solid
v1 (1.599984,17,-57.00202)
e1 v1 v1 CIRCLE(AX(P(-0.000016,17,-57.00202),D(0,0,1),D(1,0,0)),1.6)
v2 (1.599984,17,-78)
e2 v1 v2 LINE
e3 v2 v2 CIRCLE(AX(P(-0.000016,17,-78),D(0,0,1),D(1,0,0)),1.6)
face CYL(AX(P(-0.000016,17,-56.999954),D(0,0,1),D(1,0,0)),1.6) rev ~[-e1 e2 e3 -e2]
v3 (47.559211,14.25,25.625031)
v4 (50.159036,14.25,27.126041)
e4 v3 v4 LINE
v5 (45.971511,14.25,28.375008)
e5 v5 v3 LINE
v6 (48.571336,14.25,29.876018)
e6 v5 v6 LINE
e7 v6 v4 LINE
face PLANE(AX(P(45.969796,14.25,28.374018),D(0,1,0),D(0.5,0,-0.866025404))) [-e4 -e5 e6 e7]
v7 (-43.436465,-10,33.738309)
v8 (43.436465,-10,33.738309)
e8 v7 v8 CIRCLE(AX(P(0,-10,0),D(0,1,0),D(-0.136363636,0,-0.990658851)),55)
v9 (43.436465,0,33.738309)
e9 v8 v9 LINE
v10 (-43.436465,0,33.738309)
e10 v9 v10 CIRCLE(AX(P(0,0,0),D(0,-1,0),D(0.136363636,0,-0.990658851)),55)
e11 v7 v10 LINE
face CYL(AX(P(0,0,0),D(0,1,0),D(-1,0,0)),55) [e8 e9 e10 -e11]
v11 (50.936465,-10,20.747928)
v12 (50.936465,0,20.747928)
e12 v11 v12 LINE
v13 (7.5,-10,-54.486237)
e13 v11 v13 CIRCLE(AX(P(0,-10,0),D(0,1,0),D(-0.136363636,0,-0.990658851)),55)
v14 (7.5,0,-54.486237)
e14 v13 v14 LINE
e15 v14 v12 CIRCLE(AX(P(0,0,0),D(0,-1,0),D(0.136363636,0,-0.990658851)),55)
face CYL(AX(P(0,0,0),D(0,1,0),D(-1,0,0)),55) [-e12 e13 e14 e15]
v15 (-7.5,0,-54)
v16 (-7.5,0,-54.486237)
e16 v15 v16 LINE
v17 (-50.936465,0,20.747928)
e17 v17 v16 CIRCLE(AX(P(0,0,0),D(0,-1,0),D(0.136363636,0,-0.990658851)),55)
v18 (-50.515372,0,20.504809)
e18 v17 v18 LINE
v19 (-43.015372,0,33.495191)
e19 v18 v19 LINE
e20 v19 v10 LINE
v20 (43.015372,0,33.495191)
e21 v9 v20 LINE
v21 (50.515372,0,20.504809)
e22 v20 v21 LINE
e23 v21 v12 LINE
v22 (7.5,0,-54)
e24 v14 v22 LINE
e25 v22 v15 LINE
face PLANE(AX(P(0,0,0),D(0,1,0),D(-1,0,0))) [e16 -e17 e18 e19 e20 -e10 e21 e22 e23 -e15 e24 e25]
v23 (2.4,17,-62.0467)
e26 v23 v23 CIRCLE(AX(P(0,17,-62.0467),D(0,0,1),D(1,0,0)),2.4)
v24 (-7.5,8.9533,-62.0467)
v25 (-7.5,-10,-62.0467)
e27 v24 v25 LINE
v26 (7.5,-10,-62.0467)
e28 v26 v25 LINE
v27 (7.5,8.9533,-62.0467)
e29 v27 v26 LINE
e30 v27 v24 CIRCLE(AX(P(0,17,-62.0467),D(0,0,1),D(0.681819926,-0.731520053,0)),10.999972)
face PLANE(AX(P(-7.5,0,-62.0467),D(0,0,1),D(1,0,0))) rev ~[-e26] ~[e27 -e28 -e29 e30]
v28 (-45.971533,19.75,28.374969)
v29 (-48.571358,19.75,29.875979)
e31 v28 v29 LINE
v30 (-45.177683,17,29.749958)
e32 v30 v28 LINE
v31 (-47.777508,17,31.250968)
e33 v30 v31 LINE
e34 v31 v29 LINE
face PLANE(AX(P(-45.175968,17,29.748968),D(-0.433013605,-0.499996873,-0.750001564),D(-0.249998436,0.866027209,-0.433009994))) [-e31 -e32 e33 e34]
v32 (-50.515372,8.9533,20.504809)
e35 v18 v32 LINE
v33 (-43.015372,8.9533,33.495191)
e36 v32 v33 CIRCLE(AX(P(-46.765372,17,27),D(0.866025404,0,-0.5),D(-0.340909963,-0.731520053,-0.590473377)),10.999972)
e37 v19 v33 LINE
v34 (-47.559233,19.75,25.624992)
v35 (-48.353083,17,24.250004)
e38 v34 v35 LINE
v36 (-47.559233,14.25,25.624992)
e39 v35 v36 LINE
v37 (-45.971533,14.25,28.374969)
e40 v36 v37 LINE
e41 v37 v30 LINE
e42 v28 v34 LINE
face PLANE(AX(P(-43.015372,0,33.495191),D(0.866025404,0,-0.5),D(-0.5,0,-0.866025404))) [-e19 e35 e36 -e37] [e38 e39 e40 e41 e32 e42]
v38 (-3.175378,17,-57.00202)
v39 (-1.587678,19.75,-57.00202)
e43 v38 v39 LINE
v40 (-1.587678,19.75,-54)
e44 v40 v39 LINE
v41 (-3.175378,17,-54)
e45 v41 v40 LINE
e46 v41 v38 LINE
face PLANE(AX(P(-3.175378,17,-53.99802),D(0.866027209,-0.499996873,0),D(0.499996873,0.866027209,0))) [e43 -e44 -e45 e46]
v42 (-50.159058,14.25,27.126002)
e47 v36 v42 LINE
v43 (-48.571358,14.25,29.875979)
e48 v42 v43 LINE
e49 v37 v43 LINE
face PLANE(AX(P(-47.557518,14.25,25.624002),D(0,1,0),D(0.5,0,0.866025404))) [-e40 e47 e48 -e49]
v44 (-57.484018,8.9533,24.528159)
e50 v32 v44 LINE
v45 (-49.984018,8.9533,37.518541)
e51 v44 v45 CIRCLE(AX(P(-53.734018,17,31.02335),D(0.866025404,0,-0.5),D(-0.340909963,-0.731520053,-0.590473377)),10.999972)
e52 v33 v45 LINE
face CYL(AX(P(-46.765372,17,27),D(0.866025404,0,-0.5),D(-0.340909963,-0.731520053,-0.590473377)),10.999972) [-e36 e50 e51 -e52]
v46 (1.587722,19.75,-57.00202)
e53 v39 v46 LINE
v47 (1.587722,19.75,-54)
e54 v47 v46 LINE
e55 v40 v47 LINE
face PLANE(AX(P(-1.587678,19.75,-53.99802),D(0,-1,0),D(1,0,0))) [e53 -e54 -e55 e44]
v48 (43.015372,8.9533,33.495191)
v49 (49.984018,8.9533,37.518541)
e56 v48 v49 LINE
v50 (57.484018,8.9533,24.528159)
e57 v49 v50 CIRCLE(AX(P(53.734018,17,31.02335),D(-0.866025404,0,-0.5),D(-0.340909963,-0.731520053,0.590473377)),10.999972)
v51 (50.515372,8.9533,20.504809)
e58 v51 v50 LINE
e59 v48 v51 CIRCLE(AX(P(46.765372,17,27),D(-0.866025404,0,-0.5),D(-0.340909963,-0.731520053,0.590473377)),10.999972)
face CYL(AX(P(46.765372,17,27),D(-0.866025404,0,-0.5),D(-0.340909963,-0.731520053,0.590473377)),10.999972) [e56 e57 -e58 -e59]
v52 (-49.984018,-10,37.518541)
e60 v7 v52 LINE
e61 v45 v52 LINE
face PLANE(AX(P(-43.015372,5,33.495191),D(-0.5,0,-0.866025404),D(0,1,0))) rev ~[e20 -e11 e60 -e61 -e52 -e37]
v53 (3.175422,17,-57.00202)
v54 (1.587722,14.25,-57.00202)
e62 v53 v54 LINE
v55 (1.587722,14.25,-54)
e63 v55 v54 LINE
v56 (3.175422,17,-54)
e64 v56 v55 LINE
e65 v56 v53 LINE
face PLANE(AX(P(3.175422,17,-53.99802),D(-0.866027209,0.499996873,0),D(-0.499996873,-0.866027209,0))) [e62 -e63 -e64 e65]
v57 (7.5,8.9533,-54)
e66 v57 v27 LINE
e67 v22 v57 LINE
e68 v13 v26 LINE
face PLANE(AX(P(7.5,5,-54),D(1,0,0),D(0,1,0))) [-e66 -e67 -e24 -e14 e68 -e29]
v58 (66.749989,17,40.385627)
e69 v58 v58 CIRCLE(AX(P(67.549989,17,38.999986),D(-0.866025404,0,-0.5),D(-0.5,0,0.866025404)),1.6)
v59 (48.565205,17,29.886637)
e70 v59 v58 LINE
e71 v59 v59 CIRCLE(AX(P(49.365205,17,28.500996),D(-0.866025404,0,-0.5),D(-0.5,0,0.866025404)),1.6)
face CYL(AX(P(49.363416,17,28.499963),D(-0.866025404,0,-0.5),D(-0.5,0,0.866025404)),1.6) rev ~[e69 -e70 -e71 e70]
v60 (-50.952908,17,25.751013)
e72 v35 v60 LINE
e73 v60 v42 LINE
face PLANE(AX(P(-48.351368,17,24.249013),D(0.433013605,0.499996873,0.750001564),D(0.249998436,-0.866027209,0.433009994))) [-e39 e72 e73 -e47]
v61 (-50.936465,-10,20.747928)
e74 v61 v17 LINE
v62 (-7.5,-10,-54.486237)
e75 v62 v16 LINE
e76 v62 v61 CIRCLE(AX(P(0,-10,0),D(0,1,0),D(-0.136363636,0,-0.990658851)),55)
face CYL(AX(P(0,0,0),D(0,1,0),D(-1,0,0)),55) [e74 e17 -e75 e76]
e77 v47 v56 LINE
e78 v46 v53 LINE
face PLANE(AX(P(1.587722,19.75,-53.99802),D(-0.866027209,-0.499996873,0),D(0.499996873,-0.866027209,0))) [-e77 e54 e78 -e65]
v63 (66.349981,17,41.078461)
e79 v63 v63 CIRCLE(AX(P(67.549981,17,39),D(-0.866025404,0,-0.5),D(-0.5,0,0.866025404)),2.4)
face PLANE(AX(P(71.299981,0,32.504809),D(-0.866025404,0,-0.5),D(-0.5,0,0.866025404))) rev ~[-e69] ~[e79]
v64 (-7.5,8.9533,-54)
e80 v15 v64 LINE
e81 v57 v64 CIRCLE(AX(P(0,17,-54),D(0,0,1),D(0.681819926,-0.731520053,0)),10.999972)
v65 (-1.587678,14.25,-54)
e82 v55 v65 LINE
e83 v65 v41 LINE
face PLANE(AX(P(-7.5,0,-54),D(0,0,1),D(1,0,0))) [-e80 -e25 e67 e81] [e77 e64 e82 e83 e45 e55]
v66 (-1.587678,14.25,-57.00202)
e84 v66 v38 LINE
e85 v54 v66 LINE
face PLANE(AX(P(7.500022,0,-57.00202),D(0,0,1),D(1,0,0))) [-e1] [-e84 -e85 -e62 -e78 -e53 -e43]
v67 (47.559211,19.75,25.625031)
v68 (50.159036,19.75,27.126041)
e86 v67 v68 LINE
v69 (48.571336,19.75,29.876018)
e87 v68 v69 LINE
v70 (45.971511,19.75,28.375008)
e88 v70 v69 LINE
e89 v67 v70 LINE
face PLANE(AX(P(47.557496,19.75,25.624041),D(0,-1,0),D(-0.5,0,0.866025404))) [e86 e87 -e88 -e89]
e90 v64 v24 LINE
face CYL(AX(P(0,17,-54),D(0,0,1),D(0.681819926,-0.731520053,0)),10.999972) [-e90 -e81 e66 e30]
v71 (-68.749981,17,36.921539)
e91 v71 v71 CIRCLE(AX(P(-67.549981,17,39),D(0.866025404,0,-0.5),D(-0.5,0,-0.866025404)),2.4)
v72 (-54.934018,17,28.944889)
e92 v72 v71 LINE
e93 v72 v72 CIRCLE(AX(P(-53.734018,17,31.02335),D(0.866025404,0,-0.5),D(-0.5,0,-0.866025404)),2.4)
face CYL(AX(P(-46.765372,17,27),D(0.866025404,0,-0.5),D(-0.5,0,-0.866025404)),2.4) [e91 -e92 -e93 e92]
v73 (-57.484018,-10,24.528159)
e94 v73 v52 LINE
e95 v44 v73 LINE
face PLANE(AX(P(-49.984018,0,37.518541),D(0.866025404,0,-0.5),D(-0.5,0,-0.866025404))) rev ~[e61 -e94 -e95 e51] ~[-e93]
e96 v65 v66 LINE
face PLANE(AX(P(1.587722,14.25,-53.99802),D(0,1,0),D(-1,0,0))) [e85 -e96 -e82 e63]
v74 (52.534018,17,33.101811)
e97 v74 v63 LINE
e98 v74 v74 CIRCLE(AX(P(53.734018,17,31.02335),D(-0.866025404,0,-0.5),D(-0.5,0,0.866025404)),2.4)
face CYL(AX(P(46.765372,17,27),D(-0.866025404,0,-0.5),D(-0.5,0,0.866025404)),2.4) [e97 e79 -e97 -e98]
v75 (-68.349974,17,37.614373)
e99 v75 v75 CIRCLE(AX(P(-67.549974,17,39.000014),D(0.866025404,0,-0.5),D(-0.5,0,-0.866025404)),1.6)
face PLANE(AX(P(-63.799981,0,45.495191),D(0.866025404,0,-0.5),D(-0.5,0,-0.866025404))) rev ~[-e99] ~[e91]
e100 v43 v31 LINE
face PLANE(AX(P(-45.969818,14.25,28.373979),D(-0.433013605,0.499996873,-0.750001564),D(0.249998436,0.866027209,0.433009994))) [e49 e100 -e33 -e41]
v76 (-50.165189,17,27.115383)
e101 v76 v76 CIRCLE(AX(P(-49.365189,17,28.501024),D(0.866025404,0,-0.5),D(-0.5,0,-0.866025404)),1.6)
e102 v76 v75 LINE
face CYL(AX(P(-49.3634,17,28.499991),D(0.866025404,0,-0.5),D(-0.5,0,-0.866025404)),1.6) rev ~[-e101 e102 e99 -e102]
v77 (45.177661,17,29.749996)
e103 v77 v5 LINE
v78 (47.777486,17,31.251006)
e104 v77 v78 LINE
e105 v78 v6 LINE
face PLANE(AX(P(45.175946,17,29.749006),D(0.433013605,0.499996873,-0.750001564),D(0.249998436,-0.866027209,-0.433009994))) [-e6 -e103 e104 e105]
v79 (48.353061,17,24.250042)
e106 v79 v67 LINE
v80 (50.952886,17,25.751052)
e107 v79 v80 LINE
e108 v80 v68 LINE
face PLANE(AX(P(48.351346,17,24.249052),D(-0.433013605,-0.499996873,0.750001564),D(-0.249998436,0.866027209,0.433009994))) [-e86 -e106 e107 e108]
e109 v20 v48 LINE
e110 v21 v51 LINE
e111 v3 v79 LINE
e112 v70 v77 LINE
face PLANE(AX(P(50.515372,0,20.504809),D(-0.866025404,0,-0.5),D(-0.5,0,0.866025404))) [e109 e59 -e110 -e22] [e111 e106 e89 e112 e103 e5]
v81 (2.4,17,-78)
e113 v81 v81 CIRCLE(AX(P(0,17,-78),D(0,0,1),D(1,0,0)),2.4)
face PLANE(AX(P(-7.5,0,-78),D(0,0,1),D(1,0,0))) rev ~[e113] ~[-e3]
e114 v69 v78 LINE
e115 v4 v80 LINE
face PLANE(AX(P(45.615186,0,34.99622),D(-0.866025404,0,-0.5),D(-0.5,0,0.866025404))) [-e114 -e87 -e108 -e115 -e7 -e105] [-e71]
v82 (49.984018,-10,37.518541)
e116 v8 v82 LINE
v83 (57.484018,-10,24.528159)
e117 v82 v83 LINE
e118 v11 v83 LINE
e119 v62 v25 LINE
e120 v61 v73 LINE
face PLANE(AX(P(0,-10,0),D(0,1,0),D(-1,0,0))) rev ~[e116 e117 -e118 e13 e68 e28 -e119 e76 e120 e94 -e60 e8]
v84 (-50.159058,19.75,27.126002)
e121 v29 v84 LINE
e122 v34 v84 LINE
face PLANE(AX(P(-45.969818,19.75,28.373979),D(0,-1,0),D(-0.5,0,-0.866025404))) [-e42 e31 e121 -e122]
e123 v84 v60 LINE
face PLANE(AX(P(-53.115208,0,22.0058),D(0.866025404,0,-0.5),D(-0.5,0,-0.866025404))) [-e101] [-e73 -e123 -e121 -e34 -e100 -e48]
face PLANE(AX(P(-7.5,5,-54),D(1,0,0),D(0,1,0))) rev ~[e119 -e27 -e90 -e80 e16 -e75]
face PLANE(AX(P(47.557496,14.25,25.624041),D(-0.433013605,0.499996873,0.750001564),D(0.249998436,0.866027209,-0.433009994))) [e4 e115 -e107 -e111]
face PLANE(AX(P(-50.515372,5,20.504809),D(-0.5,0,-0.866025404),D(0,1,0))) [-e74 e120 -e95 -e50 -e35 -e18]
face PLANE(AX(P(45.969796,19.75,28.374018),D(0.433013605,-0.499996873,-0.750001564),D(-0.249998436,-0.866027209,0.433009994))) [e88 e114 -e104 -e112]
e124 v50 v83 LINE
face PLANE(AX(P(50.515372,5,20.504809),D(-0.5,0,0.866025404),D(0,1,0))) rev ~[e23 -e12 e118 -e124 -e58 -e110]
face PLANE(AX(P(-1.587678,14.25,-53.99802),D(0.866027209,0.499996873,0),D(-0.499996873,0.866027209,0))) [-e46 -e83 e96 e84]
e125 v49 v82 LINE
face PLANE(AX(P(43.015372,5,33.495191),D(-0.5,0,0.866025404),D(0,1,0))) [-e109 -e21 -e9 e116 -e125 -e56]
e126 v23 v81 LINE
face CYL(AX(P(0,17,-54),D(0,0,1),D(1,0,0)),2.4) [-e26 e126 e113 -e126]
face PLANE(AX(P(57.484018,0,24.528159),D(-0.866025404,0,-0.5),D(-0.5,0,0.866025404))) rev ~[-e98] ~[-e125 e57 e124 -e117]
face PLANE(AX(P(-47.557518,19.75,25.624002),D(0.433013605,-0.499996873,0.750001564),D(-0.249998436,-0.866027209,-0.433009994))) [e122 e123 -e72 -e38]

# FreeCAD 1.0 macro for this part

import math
import FreeCAD as App
import Part
import Sketcher

V = App.Vector
Q = App.Units.Quantity

doc = App.newDocument("Part")
body = doc.addObject("PartDesign::Body", "Body")

sketch1 = body.newObject("Sketcher::SketchObject", "Sketch")
sketch1.AttachmentSupport = (doc.getObject("XZ_Plane"), [""])
sketch1.MapMode = "FlatFace"
sketch1.addGeometry(Part.Circle(V(0, 0, 0), V(0, 0, 1), 55), False)
sketch1.addConstraint(Sketcher.Constraint("Coincident", 0, 3, -1, 1))
sketch1.addConstraint(Sketcher.Constraint("Diameter", 0, 110.0))
pad1 = body.newObject("PartDesign::Pad", "Pad")
pad1.Profile = sketch1
pad1.Length = 10

sketch2 = body.newObject("Sketcher::SketchObject", "Sketch001")
sketch2.AttachmentSupport = (doc.getObject("XZ_Plane"), [""])
sketch2.MapMode = "FlatFace"
sketch2.addGeometry(Part.LineSegment(V(8, -54, 0), V(8, -62, 0)), False)
sketch2.addGeometry(Part.LineSegment(V(8, -62, 0), V(-8, -62, 0)), False)
sketch2.addGeometry(Part.LineSegment(V(-8, -62, 0), V(-8, -54, 0)), False)
sketch2.addGeometry(Part.LineSegment(V(-8, -54, 0), V(8, -54, 0)), False)
sketch2.addConstraint(Sketcher.Constraint("Coincident", 0, 2, 1, 1))
sketch2.addConstraint(Sketcher.Constraint("Coincident", 1, 2, 2, 1))
sketch2.addConstraint(Sketcher.Constraint("Coincident", 2, 2, 3, 1))
sketch2.addConstraint(Sketcher.Constraint("Coincident", 3, 2, 0, 1))
sketch2.addConstraint(Sketcher.Constraint("Vertical", 0))
sketch2.addConstraint(Sketcher.Constraint("Horizontal", 1))
sketch2.addConstraint(Sketcher.Constraint("Vertical", 2))
sketch2.addConstraint(Sketcher.Constraint("Horizontal", 3))
sketch2.addConstraint(Sketcher.Constraint("DistanceX", 1, 2, 1, 1, 15.0))
sketch2.addConstraint(Sketcher.Constraint("DistanceY", 0, 2, 0, 1, 8.0467))
sketch2.addConstraint(Sketcher.Constraint("DistanceY", 2, 2, -1, 1, 54.0))
sketch2.addConstraint(Sketcher.Constraint("DistanceX", -1, 1, 0, 2, 7.5))
pad2 = body.newObject("PartDesign::Pad", "Pad001")
pad2.Profile = sketch2
pad2.Type = "TwoLengths"
pad2.Length = 5
pad2.Length2 = 10
pad2.Reversed = True

sketch3 = body.newObject("Sketcher::SketchObject", "Sketch002")
sketch3.AttachmentSupport = (doc.getObject("XY_Plane"), [""])
sketch3.MapMode = "FlatFace"
sketch3.AttachmentOffset = App.Placement(V(0, 0, -54), App.Rotation())
sketch3.addGeometry(Part.LineSegment(V(-7.5, 9, 0), V(-7.5, 5, 0)), False)
sketch3.addGeometry(Part.LineSegment(V(-7.5, 5, 0), V(7.5, 5, 0)), False)
sketch3.addGeometry(Part.LineSegment(V(7.5, 5, 0), V(7.5, 9, 0)), False)
sketch3.addGeometry(Part.ArcOfCircle(Part.Circle(V(0, 17, 0), V(0, 0, 1), 11), math.radians(-47), math.radians(227)), False)
sketch3.addConstraint(Sketcher.Constraint("Coincident", 0, 2, 1, 1))
sketch3.addConstraint(Sketcher.Constraint("Coincident", 1, 2, 2, 1))
sketch3.addConstraint(Sketcher.Constraint("Coincident", 2, 2, 3, 1))
sketch3.addConstraint(Sketcher.Constraint("Coincident", 3, 2, 0, 1))
sketch3.addConstraint(Sketcher.Constraint("Vertical", 0))
sketch3.addConstraint(Sketcher.Constraint("Horizontal", 1))
sketch3.addConstraint(Sketcher.Constraint("Vertical", 2))
sketch3.addConstraint(Sketcher.Constraint("Symmetric", 2, 2, 3, 2, -2))
sketch3.addConstraint(Sketcher.Constraint("Radius", 3, 11.0))
sketch3.addConstraint(Sketcher.Constraint("DistanceX", 1, 1, 1, 2, 15.0))
sketch3.addConstraint(Sketcher.Constraint("DistanceY", 0, 2, 3, 3, 12.0))
sketch3.addConstraint(Sketcher.Constraint("DistanceY", -1, 1, 3, 3, 17.0))
pad3 = body.newObject("PartDesign::Pad", "Pad002")
pad3.Profile = sketch3
pad3.Length = 8.0467
pad3.Reversed = True
doc.recompute()

polarpattern = body.newObject("PartDesign::PolarPattern", "PolarPattern")
polarpattern.Originals = [pad2, pad3]
polarpattern.Axis = (doc.getObject("Y_Axis"), [""])
polarpattern.Angle = 360
polarpattern.Occurrences = 3
body.Tip = polarpattern

sketch4 = body.newObject("Sketcher::SketchObject", "Sketch003")
sketch4.AttachmentSupport = (doc.getObject("XY_Plane"), [""])
sketch4.MapMode = "FlatFace"
sketch4.AttachmentOffset = App.Placement(V(0, 0, -54), App.Rotation())
sketch4.addGeometry(Part.Circle(V(0, 17, 0), V(0, 0, 1), 2.4), False)
sketch4.addConstraint(Sketcher.Constraint("PointOnObject", 0, 3, -2))
sketch4.addConstraint(Sketcher.Constraint("Diameter", 0, 4.8))
sketch4.addConstraint(Sketcher.Constraint("DistanceY", -1, 1, 0, 3, 17.0))
pad4 = body.newObject("PartDesign::Pad", "Pad003")
pad4.Profile = sketch4
pad4.Length = 24
pad4.Reversed = True
doc.recompute()

polarpattern2 = body.newObject("PartDesign::PolarPattern", "PolarPattern001")
polarpattern2.Originals = [pad4]
polarpattern2.Axis = (doc.getObject("Y_Axis"), [""])
polarpattern2.Angle = 360
polarpattern2.Occurrences = 3
body.Tip = polarpattern2

sketch5 = body.newObject("Sketcher::SketchObject", "Sketch004")
sketch5.Placement = App.Placement(V(-50.5154, 0, 20.5048), App.Rotation(V(-0.5, 0, -0.866025404), V(0, 1, 0), V(0.866025404, 0, -0.5), "ZXY"))
sketch5.addGeometry(Part.LineSegment(V(-5.9, 14.3, 0), V(-4.3, 17, 0)), False)
sketch5.addGeometry(Part.LineSegment(V(-4.3, 17, 0), V(-5.9, 19.8, 0)), False)
sketch5.addGeometry(Part.LineSegment(V(-5.9, 19.8, 0), V(-9.1, 19.8, 0)), False)
sketch5.addGeometry(Part.LineSegment(V(-9.1, 19.8, 0), V(-10.7, 17, 0)), False)
sketch5.addGeometry(Part.LineSegment(V(-10.7, 17, 0), V(-9.1, 14.3, 0)), False)
sketch5.addGeometry(Part.LineSegment(V(-9.1, 14.3, 0), V(-5.9, 14.3, 0)), False)
sketch5.addConstraint(Sketcher.Constraint("Coincident", 0, 2, 1, 1))
sketch5.addConstraint(Sketcher.Constraint("Coincident", 1, 2, 2, 1))
sketch5.addConstraint(Sketcher.Constraint("Coincident", 2, 2, 3, 1))
sketch5.addConstraint(Sketcher.Constraint("Coincident", 3, 2, 4, 1))
sketch5.addConstraint(Sketcher.Constraint("Coincident", 4, 2, 5, 1))
sketch5.addConstraint(Sketcher.Constraint("Coincident", 5, 2, 0, 1))
sketch5.addConstraint(Sketcher.Constraint("Horizontal", 2))
sketch5.addConstraint(Sketcher.Constraint("Horizontal", 5))
sketch5.addConstraint(Sketcher.Constraint("Parallel", 0, 3))
sketch5.addConstraint(Sketcher.Constraint("Parallel", 1, 4))
sketch5.addConstraint(Sketcher.Constraint("Horizontal", 0, 2, 3, 2))
sketch5.addConstraint(Sketcher.Constraint("Vertical", 2, 2, 4, 2))
sketch5.addConstraint(Sketcher.Constraint("Vertical", 1, 2, 5, 2))
sketch5.addConstraint(Sketcher.Constraint("DistanceY", 4, 2, 2, 2, 5.5))
sketch5.addConstraint(Sketcher.Constraint("Angle", 0, Q("60.0002 deg")))
sketch5.addConstraint(Sketcher.Constraint("DistanceY", -1, 1, 0, 2, 17.0))
sketch5.addConstraint(Sketcher.Constraint("DistanceX", 2, 2, 2, 1, 3.1754))
sketch5.addConstraint(Sketcher.Constraint("DistanceX", 0, 2, -1, 1, 4.3246))
pocket1 = body.newObject("PartDesign::Pocket", "Pocket")
pocket1.Profile = sketch5
pocket1.Length = 3

sketch6 = body.newObject("Sketcher::SketchObject", "Sketch005")
sketch6.Placement = App.Placement(V(-53.1134, 0, 22.0048), App.Rotation(V(-0.5, 0, -0.866025404), V(0, 1, 0), V(0.866025404, 0, -0.5), "ZXY"))
sketch6.addGeometry(Part.Circle(V(-7.5, 17, 0), V(0, 0, 1), 1.6), False)
sketch6.addConstraint(Sketcher.Constraint("Diameter", 0, 3.2))
sketch6.addConstraint(Sketcher.Constraint("DistanceY", -1, 1, 0, 3, 17.0))
sketch6.addConstraint(Sketcher.Constraint("DistanceX", 0, 3, -1, 1, 7.5))
pocket2 = body.newObject("PartDesign::Pocket", "Pocket001")
pocket2.Profile = sketch6
pocket2.Type = "ThroughAll"
doc.recompute()

polarpattern3 = body.newObject("PartDesign::PolarPattern", "PolarPattern002")
polarpattern3.Originals = [pocket1, pocket2]
polarpattern3.Axis = (doc.getObject("Y_Axis"), [""])
polarpattern3.Angle = 360
polarpattern3.Occurrences = 3
body.Tip = polarpattern3

doc.recompute()
